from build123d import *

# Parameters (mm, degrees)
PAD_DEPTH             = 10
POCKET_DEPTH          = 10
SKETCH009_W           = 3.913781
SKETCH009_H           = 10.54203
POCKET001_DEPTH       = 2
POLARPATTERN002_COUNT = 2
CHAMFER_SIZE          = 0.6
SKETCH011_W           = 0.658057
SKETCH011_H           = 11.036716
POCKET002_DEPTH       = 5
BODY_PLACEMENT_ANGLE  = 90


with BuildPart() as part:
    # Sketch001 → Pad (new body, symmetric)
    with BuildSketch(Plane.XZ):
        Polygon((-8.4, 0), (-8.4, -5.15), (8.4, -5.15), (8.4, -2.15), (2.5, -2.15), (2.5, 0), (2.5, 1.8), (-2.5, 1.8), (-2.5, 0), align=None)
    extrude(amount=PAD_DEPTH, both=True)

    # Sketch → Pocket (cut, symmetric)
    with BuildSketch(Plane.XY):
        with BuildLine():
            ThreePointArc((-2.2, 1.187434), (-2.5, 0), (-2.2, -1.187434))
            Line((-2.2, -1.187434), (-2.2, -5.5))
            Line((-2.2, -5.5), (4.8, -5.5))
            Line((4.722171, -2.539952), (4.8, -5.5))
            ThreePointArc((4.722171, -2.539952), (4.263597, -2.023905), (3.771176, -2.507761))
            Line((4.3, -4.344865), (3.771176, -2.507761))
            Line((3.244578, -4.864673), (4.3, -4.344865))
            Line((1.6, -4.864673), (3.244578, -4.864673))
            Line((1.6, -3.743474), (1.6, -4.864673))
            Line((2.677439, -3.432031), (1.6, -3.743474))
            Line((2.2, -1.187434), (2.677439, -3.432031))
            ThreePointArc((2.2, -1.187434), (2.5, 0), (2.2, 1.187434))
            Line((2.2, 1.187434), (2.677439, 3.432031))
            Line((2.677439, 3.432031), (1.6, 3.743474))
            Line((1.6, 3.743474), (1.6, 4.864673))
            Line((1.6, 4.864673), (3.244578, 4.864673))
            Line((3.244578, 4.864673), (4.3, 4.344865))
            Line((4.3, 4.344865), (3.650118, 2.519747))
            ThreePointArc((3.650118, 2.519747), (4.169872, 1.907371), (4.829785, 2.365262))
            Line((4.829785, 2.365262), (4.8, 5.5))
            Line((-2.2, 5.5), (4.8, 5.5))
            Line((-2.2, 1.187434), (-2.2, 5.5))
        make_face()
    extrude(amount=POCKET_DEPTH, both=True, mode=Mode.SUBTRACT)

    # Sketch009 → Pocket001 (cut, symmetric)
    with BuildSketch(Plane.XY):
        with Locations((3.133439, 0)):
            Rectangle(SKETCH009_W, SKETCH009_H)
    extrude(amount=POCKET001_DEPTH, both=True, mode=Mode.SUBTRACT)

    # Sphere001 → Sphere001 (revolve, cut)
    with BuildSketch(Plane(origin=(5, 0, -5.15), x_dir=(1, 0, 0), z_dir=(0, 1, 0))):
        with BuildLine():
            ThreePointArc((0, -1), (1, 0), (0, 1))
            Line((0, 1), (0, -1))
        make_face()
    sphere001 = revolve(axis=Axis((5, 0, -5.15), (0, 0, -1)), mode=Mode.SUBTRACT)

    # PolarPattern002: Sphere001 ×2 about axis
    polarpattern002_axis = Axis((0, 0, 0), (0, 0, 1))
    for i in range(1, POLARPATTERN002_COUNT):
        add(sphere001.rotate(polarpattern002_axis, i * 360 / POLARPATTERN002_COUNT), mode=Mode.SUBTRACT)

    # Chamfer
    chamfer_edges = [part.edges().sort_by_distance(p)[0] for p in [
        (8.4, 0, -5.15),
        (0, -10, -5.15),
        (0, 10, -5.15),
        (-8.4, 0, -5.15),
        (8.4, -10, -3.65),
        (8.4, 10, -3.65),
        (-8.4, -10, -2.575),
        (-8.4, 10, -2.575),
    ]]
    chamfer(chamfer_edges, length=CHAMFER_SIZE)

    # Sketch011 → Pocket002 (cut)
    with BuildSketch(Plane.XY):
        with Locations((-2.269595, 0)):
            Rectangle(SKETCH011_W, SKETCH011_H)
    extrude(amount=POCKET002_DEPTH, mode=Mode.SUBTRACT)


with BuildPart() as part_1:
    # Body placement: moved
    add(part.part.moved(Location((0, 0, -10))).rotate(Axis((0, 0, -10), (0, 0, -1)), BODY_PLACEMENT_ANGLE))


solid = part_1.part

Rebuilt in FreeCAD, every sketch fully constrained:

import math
import FreeCAD as App
import Part
import Sketcher
Q = App.Units.Quantity


def edges_at(feature, points):
    """Names of the edges that pass closest to the given points."""
    edges = feature.Shape.Edges
    near = lambda p: min(range(len(edges)), key=lambda i: edges[i].distToShape(Part.Vertex(*p))[0])
    return sorted({f"Edge{near(p) + 1}" for p in points})


def add_polygon(sketch, points):
    """Adds a closed chain of lines whose ends are joined by coincident constraints."""
    first, n = sketch.GeometryCount, len(points)
    for a, b in zip(points, points[1:] + points[:1]):
        sketch.addGeometry(Part.LineSegment(App.Vector(*a, 0), App.Vector(*b, 0)), False)
    for i in range(n):
        sketch.addConstraint(Sketcher.Constraint("Coincident", first + i, 2, first + (i + 1) % n, 1))

doc = App.newDocument("Part")
body = doc.addObject("PartDesign::Body", "Body")

sketch1 = doc.addObject("Sketcher::SketchObject", "Sketch")
body.addObject(sketch1)
sketch1.AttachmentSupport = (doc.XZ_Plane, [""])
sketch1.MapMode = "FlatFace"
add_polygon(sketch1, [(-8.4, 0), (-8.4, -5.2), (8.4, -5.2), (8.4, -2.1), (2.5, -2.1), (2.5, 1.8), (-2.5, 1.8), (-2.5, 0)])
sketch1.addConstraint([
    Sketcher.Constraint("Vertical", 0),
    Sketcher.Constraint("Horizontal", 1),
    Sketcher.Constraint("Vertical", 2),
    Sketcher.Constraint("Horizontal", 3),
    Sketcher.Constraint("Vertical", 4),
    Sketcher.Constraint("Horizontal", 5),
    Sketcher.Constraint("Vertical", 6),
    Sketcher.Constraint("Horizontal", 7),
    Sketcher.Constraint("PointOnObject", 6, 2, -1),
    Sketcher.Constraint("Equal", 3, 7),
    Sketcher.Constraint("DistanceX", 5, 2, 5, 1, Q("5 mm")),
    Sketcher.Constraint("DistanceY", 2, 1, 2, 2, Q("3 mm")),
    Sketcher.Constraint("DistanceX", 1, 1, 1, 2, Q("16.8 mm")),
    Sketcher.Constraint("DistanceY", 6, 2, 6, 1, Q("1.8 mm")),
    Sketcher.Constraint("DistanceY", 0, 2, 0, 1, Q("5.15 mm")),
    Sketcher.Constraint("DistanceX", 0, 2, -1, 1, Q("8.4 mm")),
])
pad1 = doc.addObject("PartDesign::Pad", "Pad")
body.addObject(pad1)
pad1.Profile = sketch1
pad1.Length = 20
pad1.Midplane = True

sketch2 = doc.addObject("Sketcher::SketchObject", "Sketch001")
body.addObject(sketch2)
sketch2.AttachmentSupport = (doc.XY_Plane, [""])
sketch2.MapMode = "FlatFace"
sketch2.addGeometry([
    Part.ArcOfCircle(Part.Circle(App.Vector(0, 0, 0), App.Vector(0, 0, 1), 2.5), math.radians(152), math.radians(208)),
    Part.LineSegment(App.Vector(-2.2, -1.19, 0), App.Vector(-2.2, -5.5, 0)),
    Part.LineSegment(App.Vector(-2.2, -5.5, 0), App.Vector(4.8, -5.5, 0)),
    Part.LineSegment(App.Vector(4.8, -5.5, 0), App.Vector(4.72, -2.54, 0)),
    Part.ArcOfCircle(Part.Circle(App.Vector(4.25, -2.5, 0), App.Vector(0, 0, 1), 0.48), math.radians(-5), math.radians(181)),
    Part.LineSegment(App.Vector(3.77, -2.51, 0), App.Vector(4.3, -4.34, 0)),
    Part.LineSegment(App.Vector(4.3, -4.34, 0), App.Vector(3.24, -4.86, 0)),
    Part.LineSegment(App.Vector(3.24, -4.86, 0), App.Vector(1.6, -4.86, 0)),
    Part.LineSegment(App.Vector(1.6, -4.86, 0), App.Vector(1.6, -3.74, 0)),
    Part.LineSegment(App.Vector(1.6, -3.74, 0), App.Vector(2.68, -3.43, 0)),
    Part.LineSegment(App.Vector(2.68, -3.43, 0), App.Vector(2.2, -1.19, 0)),
    Part.ArcOfCircle(Part.Circle(App.Vector(0, 0, 0), App.Vector(0, 0, 1), 2.5), math.radians(-28), math.radians(28)),
    Part.LineSegment(App.Vector(2.2, 1.19, 0), App.Vector(2.68, 3.43, 0)),
    Part.LineSegment(App.Vector(2.68, 3.43, 0), App.Vector(1.6, 3.74, 0)),
    Part.LineSegment(App.Vector(1.6, 3.74, 0), App.Vector(1.6, 4.86, 0)),
    Part.LineSegment(App.Vector(1.6, 4.86, 0), App.Vector(3.24, 4.86, 0)),
    Part.LineSegment(App.Vector(3.24, 4.86, 0), App.Vector(4.3, 4.34, 0)),
    Part.LineSegment(App.Vector(4.3, 4.34, 0), App.Vector(3.65, 2.52, 0)),
    Part.ArcOfCircle(Part.Circle(App.Vector(4.25, 2.5, 0), App.Vector(0, 0, 1), 0.6), math.radians(178), math.radians(347)),
    Part.LineSegment(App.Vector(4.83, 2.37, 0), App.Vector(4.8, 5.5, 0)),
    Part.LineSegment(App.Vector(4.8, 5.5, 0), App.Vector(-2.2, 5.5, 0)),
    Part.LineSegment(App.Vector(-2.2, 5.5, 0), App.Vector(-2.2, 1.19, 0)),
], False)
sketch2.addConstraint([
    Sketcher.Constraint("Coincident", 0, 2, 1, 1),
    Sketcher.Constraint("Coincident", 1, 2, 2, 1),
    Sketcher.Constraint("Coincident", 2, 2, 3, 1),
    Sketcher.Constraint("Coincident", 3, 2, 4, 1),
    Sketcher.Constraint("Coincident", 4, 2, 5, 1),
    Sketcher.Constraint("Coincident", 5, 2, 6, 1),
    Sketcher.Constraint("Coincident", 6, 2, 7, 1),
    Sketcher.Constraint("Coincident", 7, 2, 8, 1),
    Sketcher.Constraint("Coincident", 8, 2, 9, 1),
    Sketcher.Constraint("Coincident", 9, 2, 10, 1),
    Sketcher.Constraint("Coincident", 10, 2, 11, 1),
    Sketcher.Constraint("Coincident", 11, 2, 12, 1),
    Sketcher.Constraint("Coincident", 12, 2, 13, 1),
    Sketcher.Constraint("Coincident", 13, 2, 14, 1),
    Sketcher.Constraint("Coincident", 14, 2, 15, 1),
    Sketcher.Constraint("Coincident", 15, 2, 16, 1),
    Sketcher.Constraint("Coincident", 16, 2, 17, 1),
    Sketcher.Constraint("Coincident", 17, 2, 18, 1),
    Sketcher.Constraint("Coincident", 18, 2, 19, 1),
    Sketcher.Constraint("Coincident", 19, 2, 20, 1),
    Sketcher.Constraint("Coincident", 20, 2, 21, 1),
    Sketcher.Constraint("Coincident", 21, 2, 0, 1),
    Sketcher.Constraint("Vertical", 1),
    Sketcher.Constraint("Horizontal", 2),
    Sketcher.Constraint("Horizontal", 7),
    Sketcher.Constraint("Vertical", 8),
    Sketcher.Constraint("Vertical", 14),
    Sketcher.Constraint("Horizontal", 15),
    Sketcher.Constraint("Horizontal", 20),
    Sketcher.Constraint("Vertical", 21),
    Sketcher.Constraint("Coincident", 0, 3, -1, 1),
    Sketcher.Constraint("Coincident", 11, 3, -1, 1),
    Sketcher.Constraint("Equal", 0, 11),
    Sketcher.Constraint("Symmetric", 4, 3, 18, 3, -1),
    Sketcher.Constraint("Symmetric", 9, 2, 12, 2, -1),
    Sketcher.Constraint("Symmetric", 8, 2, 13, 2, -1),
    Sketcher.Constraint("Symmetric", 6, 2, 15, 2, -1),
    Sketcher.Constraint("Symmetric", 5, 2, 16, 2, -1),
    Sketcher.Constraint("Symmetric", 2, 2, 19, 2, -1),
    Sketcher.Constraint("Horizontal", 0, 2, 10, 2),
    Sketcher.Constraint("Horizontal", 11, 2, 21, 2),
    Sketcher.Constraint("Vertical", 10, 2, 11, 2),
    Sketcher.Constraint("Radius", 0, Q("2.499999 mm")),
    Sketcher.Constraint("DistanceX", 2, 1, 2, 2, Q("7 mm")),
    Sketcher.Constraint("DistanceY", 4, 3, 18, 3, Q("5.000001 mm")),
    Sketcher.Constraint("DistanceY", 1, 2, 4, 3, Q("2.999999 mm")),
    Sketcher.Constraint("DistanceX", 0, 2, -1, 1, Q("2.2 mm")),
    Sketcher.Constraint("DistanceX", -1, 1, 5, 2, Q("4.3 mm")),
    Sketcher.Constraint("DistanceX", -1, 1, 7, 2, Q("1.6 mm")),
    Sketcher.Constraint("Radius", 4, Q("0.476368 mm")),
    Sketcher.Constraint("Radius", 18, Q("0.597689 mm")),
    Sketcher.Constraint("DistanceY", 8, 1, 8, 2, Q("1.121199 mm")),
    Sketcher.Constraint("DistanceX", 7, 2, 7, 1, Q("1.644578 mm")),
    Sketcher.Constraint("Distance", 3, Q("2.961071 mm")),
    Sketcher.Constraint("Distance", 9, Q("1.121549 mm")),
    Sketcher.Constraint("Distance", 17, Q("1.93737 mm")),
    Sketcher.Constraint("Distance", 19, Q("3.134879 mm")),
    Sketcher.Constraint("DistanceX", -1, 1, 4, 3, Q("4.247481 mm")),
    Sketcher.Constraint("DistanceY", 4, 2, -1, 1, Q("2.507761 mm")),
    Sketcher.Constraint("DistanceX", -1, 1, 9, 2, Q("2.677439 mm")),
    Sketcher.Constraint("DistanceY", 9, 2, -1, 1, Q("3.432031 mm")),
    Sketcher.Constraint("DistanceX", -1, 1, 17, 2, Q("3.650118 mm")),
])
pocket1 = doc.addObject("PartDesign::Pocket", "Pocket")
body.addObject(pocket1)
pocket1.Profile = sketch2
pocket1.Length = 20
pocket1.Midplane = True

sketch3 = doc.addObject("Sketcher::SketchObject", "Sketch002")
body.addObject(sketch3)
sketch3.AttachmentSupport = (doc.XY_Plane, [""])
sketch3.MapMode = "FlatFace"
add_polygon(sketch3, [(1.2, 5.3), (1.2, -5.3), (5.1, -5.3), (5.1, 5.3)])
sketch3.addConstraint([
    Sketcher.Constraint("Vertical", 0),
    Sketcher.Constraint("Horizontal", 1),
    Sketcher.Constraint("Vertical", 2),
    Sketcher.Constraint("Horizontal", 3),
    Sketcher.Constraint("DistanceX", 1, 1, 1, 2, Q("3.913781 mm")),
    Sketcher.Constraint("DistanceY", 0, 2, 0, 1, Q("10.54203 mm")),
    Sketcher.Constraint("DistanceX", -1, 1, 0, 2, Q("1.176548 mm")),
    Sketcher.Constraint("DistanceY", 0, 2, -1, 1, Q("5.271015 mm")),
])
pocket2 = doc.addObject("PartDesign::Pocket", "Pocket001")
body.addObject(pocket2)
pocket2.Profile = sketch3
pocket2.Length = 4
pocket2.Midplane = True

sketch4 = doc.addObject("Sketcher::SketchObject", "Sketch003")
body.addObject(sketch4)
sketch4.AttachmentSupport = (doc.XZ_Plane, [""])
sketch4.MapMode = "FlatFace"
sketch4.addGeometry([
    Part.ArcOfCircle(Part.Circle(App.Vector(5, -5.2, 0), App.Vector(0, 0, 1), 1), math.radians(-90), math.radians(90)),
    Part.LineSegment(App.Vector(5, -6.2, 0), App.Vector(5, -4.2, 0)),
], False)
sketch4.addGeometry(Part.LineSegment(App.Vector(5, -4.2, 0), App.Vector(5, -6.2, 0)), True)
sketch4.addConstraint([
    Sketcher.Constraint("Coincident", 0, 1, 1, 1),
    Sketcher.Constraint("Coincident", 1, 2, 0, 2),
    Sketcher.Constraint("Vertical", 1),
    Sketcher.Constraint("Vertical", 2),
    Sketcher.Constraint("Coincident", 2, 1, 1, 2),
    Sketcher.Constraint("Equal", 1, 2),
    Sketcher.Constraint("Radius", 0, Q("1 mm")),
    Sketcher.Constraint("DistanceX", -1, 1, 0, 3, Q("5 mm")),
    Sketcher.Constraint("DistanceX", -1, 1, 0, 1, Q("5 mm")),
    Sketcher.Constraint("DistanceY", 0, 3, -1, 1, Q("5.15 mm")),
])
groove = doc.addObject("PartDesign::Groove", "Groove")
body.addObject(groove)
groove.Profile = sketch4
groove.ReferenceAxis = (sketch4, ["Axis0"])
groove.Angle = 360
doc.recompute()

polarpattern = doc.addObject("PartDesign::PolarPattern", "PolarPattern")
body.addObject(polarpattern)
polarpattern.Originals = [groove]
polarpattern.Axis = (doc.Z_Axis, [""])
polarpattern.Angle = 360
polarpattern.Occurrences = 2
body.Tip = polarpattern
doc.recompute()

chamfer = doc.addObject("PartDesign::Chamfer", "Chamfer")
body.addObject(chamfer)
chamfer.Base = (polarpattern, edges_at(polarpattern, [
    (8.4, 0, -5.15),
    (0, -10, -5.15),
    (0, 10, -5.15),
    (-8.4, 0, -5.15),
    (8.4, -10, -3.65),
    (8.4, 10, -3.65),
    (-8.4, -10, -2.575),
    (-8.4, 10, -2.575),
]))
chamfer.Size = 0.6

sketch5 = doc.addObject("Sketcher::SketchObject", "Sketch004")
body.addObject(sketch5)
sketch5.AttachmentSupport = (doc.XY_Plane, [""])
sketch5.MapMode = "FlatFace"
add_polygon(sketch5, [(-2.6, 5.5), (-2.6, -5.5), (-1.9, -5.5), (-1.9, 5.5)])
sketch5.addConstraint([
    Sketcher.Constraint("Vertical", 0),
    Sketcher.Constraint("Horizontal", 1),
    Sketcher.Constraint("Vertical", 2),
    Sketcher.Constraint("Horizontal", 3),
    Sketcher.Constraint("DistanceX", 1, 1, 1, 2, Q("0.658057 mm")),
    Sketcher.Constraint("DistanceY", 0, 2, 0, 1, Q("11.036716 mm")),
    Sketcher.Constraint("DistanceX", 0, 2, -1, 1, Q("2.598623 mm")),
    Sketcher.Constraint("DistanceY", 0, 2, -1, 1, Q("5.518358 mm")),
])
pocket3 = doc.addObject("PartDesign::Pocket", "Pocket002")
body.addObject(pocket3)
pocket3.Profile = sketch5
pocket3.Length = 5
pocket3.Reversed = True
body2 = doc.addObject("PartDesign::Body", "Body001")
doc.recompute()

body.Placement = App.Placement(App.Vector(0, 0, -10), App.Rotation(App.Vector(0, 0, -1), 90))
boolean = doc.addObject("PartDesign::Boolean", "Boolean")
body2.addObject(boolean)
boolean.Type = "Fuse"
boolean.addObjects([body])

doc.recompute()
